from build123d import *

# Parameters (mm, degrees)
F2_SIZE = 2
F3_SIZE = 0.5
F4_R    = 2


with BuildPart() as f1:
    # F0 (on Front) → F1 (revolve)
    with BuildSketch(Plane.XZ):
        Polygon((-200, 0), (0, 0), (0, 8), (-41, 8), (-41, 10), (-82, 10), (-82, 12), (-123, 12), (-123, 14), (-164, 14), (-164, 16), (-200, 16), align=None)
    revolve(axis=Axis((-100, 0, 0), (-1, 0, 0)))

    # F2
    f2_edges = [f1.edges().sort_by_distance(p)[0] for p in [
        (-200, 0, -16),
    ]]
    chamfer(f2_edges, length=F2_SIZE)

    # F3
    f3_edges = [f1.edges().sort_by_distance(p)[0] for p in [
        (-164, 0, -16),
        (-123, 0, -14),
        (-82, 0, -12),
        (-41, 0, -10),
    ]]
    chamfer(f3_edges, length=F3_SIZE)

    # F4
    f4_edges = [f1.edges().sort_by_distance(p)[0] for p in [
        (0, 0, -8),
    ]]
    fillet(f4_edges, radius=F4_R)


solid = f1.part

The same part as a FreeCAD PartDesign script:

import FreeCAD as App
import Part
import Sketcher
from FreeCAD import Vector
Q = App.Units.Quantity


def edges_at(feature, points):
    """Names of the edges that pass closest to the given points."""
    edges = feature.Shape.Edges
    near = lambda p: min(range(len(edges)), key=lambda i: edges[i].distToShape(Part.Vertex(*p))[0])
    return sorted({f"Edge{near(p) + 1}" for p in points})

doc = App.newDocument("Part")
body = doc.addObject("PartDesign::Body", "Body")

sketch1 = doc.addObject("Sketcher::SketchObject", "Sketch")
body.addObject(sketch1)
sketch1.AttachmentSupport = (doc.XZ_Plane, [""])
sketch1.MapMode = "FlatFace"
sketch1.addGeometry(Part.LineSegment(Vector(-200, 0, 0), Vector(0, 0, 0)), False)
sketch1.addGeometry(Part.LineSegment(Vector(0, 0, 0), Vector(0, 8, 0)), False)
sketch1.addGeometry(Part.LineSegment(Vector(0, 8, 0), Vector(-41, 8, 0)), False)
sketch1.addGeometry(Part.LineSegment(Vector(-41, 8, 0), Vector(-41, 10, 0)), False)
sketch1.addGeometry(Part.LineSegment(Vector(-41, 10, 0), Vector(-82, 10, 0)), False)
sketch1.addGeometry(Part.LineSegment(Vector(-82, 10, 0), Vector(-82, 12, 0)), False)
sketch1.addGeometry(Part.LineSegment(Vector(-82, 12, 0), Vector(-123, 12, 0)), False)
sketch1.addGeometry(Part.LineSegment(Vector(-123, 12, 0), Vector(-123, 14, 0)), False)
sketch1.addGeometry(Part.LineSegment(Vector(-123, 14, 0), Vector(-164, 14, 0)), False)
sketch1.addGeometry(Part.LineSegment(Vector(-164, 14, 0), Vector(-164, 16, 0)), False)
sketch1.addGeometry(Part.LineSegment(Vector(-164, 16, 0), Vector(-200, 16, 0)), False)
sketch1.addGeometry(Part.LineSegment(Vector(-200, 16, 0), Vector(-200, 0, 0)), False)
sketch1.addConstraint(Sketcher.Constraint("Coincident", 0, 2, 1, 1))
sketch1.addConstraint(Sketcher.Constraint("Coincident", 1, 2, 2, 1))
sketch1.addConstraint(Sketcher.Constraint("Coincident", 2, 2, 3, 1))
sketch1.addConstraint(Sketcher.Constraint("Coincident", 3, 2, 4, 1))
sketch1.addConstraint(Sketcher.Constraint("Coincident", 4, 2, 5, 1))
sketch1.addConstraint(Sketcher.Constraint("Coincident", 5, 2, 6, 1))
sketch1.addConstraint(Sketcher.Constraint("Coincident", 6, 2, 7, 1))
sketch1.addConstraint(Sketcher.Constraint("Coincident", 7, 2, 8, 1))
sketch1.addConstraint(Sketcher.Constraint("Coincident", 8, 2, 9, 1))
sketch1.addConstraint(Sketcher.Constraint("Coincident", 9, 2, 10, 1))
sketch1.addConstraint(Sketcher.Constraint("Coincident", 10, 2, 11, 1))
sketch1.addConstraint(Sketcher.Constraint("Coincident", 11, 2, 0, 1))
sketch1.addConstraint(Sketcher.Constraint("Horizontal", 0))
sketch1.addConstraint(Sketcher.Constraint("Vertical", 1))
sketch1.addConstraint(Sketcher.Constraint("Horizontal", 2))
sketch1.addConstraint(Sketcher.Constraint("Vertical", 3))
sketch1.addConstraint(Sketcher.Constraint("Horizontal", 4))
sketch1.addConstraint(Sketcher.Constraint("Vertical", 5))
sketch1.addConstraint(Sketcher.Constraint("Horizontal", 6))
sketch1.addConstraint(Sketcher.Constraint("Vertical", 7))
sketch1.addConstraint(Sketcher.Constraint("Horizontal", 8))
sketch1.addConstraint(Sketcher.Constraint("Vertical", 9))
sketch1.addConstraint(Sketcher.Constraint("Horizontal", 10))
sketch1.addConstraint(Sketcher.Constraint("Vertical", 11))
sketch1.addConstraint(Sketcher.Constraint("Coincident", 0, 2, -1, 1))
sketch1.addConstraint(Sketcher.Constraint("Equal", 2, 4))
sketch1.addConstraint(Sketcher.Constraint("Equal", 4, 6))
sketch1.addConstraint(Sketcher.Constraint("Equal", 6, 8))
sketch1.addConstraint(Sketcher.Constraint("Equal", 3, 5))
sketch1.addConstraint(Sketcher.Constraint("Equal", 5, 7))
sketch1.addConstraint(Sketcher.Constraint("Equal", 7, 9))
sketch1.addConstraint(Sketcher.Constraint("DistanceX", 0, 1, 0, 2, Q("200 mm")))
sketch1.addConstraint(Sketcher.Constraint("DistanceX", 2, 2, 2, 1, Q("41 mm")))
sketch1.addConstraint(Sketcher.Constraint("DistanceY", 1, 1, 1, 2, Q("8 mm")))
sketch1.addConstraint(Sketcher.Constraint("DistanceY", 3, 1, 3, 2, Q("2 mm")))
revolution = doc.addObject("PartDesign::Revolution", "Revolution")
body.addObject(revolution)
revolution.Profile = sketch1
revolution.ReferenceAxis = (sketch1, ["H_Axis"])
revolution.Angle = 360
doc.recompute()

chamfer = doc.addObject("PartDesign::Chamfer", "Chamfer")
body.addObject(chamfer)
chamfer.Base = (revolution, edges_at(revolution, [(-200, 0, -16)]))
chamfer.Size = 2
doc.recompute()

chamfer2 = doc.addObject("PartDesign::Chamfer", "Chamfer001")
body.addObject(chamfer2)
chamfer2.Base = (chamfer, edges_at(chamfer, [
    (-164, 0, -16),
    (-123, 0, -14),
    (-82, 0, -12),
    (-41, 0, -10),
]))
chamfer2.Size = 0.5
doc.recompute()

fillet = doc.addObject("PartDesign::Fillet", "Fillet")
body.addObject(fillet)
fillet.Base = (chamfer2, edges_at(chamfer2, [(0, 0, -8)]))
fillet.Radius = 2

doc.recompute()
